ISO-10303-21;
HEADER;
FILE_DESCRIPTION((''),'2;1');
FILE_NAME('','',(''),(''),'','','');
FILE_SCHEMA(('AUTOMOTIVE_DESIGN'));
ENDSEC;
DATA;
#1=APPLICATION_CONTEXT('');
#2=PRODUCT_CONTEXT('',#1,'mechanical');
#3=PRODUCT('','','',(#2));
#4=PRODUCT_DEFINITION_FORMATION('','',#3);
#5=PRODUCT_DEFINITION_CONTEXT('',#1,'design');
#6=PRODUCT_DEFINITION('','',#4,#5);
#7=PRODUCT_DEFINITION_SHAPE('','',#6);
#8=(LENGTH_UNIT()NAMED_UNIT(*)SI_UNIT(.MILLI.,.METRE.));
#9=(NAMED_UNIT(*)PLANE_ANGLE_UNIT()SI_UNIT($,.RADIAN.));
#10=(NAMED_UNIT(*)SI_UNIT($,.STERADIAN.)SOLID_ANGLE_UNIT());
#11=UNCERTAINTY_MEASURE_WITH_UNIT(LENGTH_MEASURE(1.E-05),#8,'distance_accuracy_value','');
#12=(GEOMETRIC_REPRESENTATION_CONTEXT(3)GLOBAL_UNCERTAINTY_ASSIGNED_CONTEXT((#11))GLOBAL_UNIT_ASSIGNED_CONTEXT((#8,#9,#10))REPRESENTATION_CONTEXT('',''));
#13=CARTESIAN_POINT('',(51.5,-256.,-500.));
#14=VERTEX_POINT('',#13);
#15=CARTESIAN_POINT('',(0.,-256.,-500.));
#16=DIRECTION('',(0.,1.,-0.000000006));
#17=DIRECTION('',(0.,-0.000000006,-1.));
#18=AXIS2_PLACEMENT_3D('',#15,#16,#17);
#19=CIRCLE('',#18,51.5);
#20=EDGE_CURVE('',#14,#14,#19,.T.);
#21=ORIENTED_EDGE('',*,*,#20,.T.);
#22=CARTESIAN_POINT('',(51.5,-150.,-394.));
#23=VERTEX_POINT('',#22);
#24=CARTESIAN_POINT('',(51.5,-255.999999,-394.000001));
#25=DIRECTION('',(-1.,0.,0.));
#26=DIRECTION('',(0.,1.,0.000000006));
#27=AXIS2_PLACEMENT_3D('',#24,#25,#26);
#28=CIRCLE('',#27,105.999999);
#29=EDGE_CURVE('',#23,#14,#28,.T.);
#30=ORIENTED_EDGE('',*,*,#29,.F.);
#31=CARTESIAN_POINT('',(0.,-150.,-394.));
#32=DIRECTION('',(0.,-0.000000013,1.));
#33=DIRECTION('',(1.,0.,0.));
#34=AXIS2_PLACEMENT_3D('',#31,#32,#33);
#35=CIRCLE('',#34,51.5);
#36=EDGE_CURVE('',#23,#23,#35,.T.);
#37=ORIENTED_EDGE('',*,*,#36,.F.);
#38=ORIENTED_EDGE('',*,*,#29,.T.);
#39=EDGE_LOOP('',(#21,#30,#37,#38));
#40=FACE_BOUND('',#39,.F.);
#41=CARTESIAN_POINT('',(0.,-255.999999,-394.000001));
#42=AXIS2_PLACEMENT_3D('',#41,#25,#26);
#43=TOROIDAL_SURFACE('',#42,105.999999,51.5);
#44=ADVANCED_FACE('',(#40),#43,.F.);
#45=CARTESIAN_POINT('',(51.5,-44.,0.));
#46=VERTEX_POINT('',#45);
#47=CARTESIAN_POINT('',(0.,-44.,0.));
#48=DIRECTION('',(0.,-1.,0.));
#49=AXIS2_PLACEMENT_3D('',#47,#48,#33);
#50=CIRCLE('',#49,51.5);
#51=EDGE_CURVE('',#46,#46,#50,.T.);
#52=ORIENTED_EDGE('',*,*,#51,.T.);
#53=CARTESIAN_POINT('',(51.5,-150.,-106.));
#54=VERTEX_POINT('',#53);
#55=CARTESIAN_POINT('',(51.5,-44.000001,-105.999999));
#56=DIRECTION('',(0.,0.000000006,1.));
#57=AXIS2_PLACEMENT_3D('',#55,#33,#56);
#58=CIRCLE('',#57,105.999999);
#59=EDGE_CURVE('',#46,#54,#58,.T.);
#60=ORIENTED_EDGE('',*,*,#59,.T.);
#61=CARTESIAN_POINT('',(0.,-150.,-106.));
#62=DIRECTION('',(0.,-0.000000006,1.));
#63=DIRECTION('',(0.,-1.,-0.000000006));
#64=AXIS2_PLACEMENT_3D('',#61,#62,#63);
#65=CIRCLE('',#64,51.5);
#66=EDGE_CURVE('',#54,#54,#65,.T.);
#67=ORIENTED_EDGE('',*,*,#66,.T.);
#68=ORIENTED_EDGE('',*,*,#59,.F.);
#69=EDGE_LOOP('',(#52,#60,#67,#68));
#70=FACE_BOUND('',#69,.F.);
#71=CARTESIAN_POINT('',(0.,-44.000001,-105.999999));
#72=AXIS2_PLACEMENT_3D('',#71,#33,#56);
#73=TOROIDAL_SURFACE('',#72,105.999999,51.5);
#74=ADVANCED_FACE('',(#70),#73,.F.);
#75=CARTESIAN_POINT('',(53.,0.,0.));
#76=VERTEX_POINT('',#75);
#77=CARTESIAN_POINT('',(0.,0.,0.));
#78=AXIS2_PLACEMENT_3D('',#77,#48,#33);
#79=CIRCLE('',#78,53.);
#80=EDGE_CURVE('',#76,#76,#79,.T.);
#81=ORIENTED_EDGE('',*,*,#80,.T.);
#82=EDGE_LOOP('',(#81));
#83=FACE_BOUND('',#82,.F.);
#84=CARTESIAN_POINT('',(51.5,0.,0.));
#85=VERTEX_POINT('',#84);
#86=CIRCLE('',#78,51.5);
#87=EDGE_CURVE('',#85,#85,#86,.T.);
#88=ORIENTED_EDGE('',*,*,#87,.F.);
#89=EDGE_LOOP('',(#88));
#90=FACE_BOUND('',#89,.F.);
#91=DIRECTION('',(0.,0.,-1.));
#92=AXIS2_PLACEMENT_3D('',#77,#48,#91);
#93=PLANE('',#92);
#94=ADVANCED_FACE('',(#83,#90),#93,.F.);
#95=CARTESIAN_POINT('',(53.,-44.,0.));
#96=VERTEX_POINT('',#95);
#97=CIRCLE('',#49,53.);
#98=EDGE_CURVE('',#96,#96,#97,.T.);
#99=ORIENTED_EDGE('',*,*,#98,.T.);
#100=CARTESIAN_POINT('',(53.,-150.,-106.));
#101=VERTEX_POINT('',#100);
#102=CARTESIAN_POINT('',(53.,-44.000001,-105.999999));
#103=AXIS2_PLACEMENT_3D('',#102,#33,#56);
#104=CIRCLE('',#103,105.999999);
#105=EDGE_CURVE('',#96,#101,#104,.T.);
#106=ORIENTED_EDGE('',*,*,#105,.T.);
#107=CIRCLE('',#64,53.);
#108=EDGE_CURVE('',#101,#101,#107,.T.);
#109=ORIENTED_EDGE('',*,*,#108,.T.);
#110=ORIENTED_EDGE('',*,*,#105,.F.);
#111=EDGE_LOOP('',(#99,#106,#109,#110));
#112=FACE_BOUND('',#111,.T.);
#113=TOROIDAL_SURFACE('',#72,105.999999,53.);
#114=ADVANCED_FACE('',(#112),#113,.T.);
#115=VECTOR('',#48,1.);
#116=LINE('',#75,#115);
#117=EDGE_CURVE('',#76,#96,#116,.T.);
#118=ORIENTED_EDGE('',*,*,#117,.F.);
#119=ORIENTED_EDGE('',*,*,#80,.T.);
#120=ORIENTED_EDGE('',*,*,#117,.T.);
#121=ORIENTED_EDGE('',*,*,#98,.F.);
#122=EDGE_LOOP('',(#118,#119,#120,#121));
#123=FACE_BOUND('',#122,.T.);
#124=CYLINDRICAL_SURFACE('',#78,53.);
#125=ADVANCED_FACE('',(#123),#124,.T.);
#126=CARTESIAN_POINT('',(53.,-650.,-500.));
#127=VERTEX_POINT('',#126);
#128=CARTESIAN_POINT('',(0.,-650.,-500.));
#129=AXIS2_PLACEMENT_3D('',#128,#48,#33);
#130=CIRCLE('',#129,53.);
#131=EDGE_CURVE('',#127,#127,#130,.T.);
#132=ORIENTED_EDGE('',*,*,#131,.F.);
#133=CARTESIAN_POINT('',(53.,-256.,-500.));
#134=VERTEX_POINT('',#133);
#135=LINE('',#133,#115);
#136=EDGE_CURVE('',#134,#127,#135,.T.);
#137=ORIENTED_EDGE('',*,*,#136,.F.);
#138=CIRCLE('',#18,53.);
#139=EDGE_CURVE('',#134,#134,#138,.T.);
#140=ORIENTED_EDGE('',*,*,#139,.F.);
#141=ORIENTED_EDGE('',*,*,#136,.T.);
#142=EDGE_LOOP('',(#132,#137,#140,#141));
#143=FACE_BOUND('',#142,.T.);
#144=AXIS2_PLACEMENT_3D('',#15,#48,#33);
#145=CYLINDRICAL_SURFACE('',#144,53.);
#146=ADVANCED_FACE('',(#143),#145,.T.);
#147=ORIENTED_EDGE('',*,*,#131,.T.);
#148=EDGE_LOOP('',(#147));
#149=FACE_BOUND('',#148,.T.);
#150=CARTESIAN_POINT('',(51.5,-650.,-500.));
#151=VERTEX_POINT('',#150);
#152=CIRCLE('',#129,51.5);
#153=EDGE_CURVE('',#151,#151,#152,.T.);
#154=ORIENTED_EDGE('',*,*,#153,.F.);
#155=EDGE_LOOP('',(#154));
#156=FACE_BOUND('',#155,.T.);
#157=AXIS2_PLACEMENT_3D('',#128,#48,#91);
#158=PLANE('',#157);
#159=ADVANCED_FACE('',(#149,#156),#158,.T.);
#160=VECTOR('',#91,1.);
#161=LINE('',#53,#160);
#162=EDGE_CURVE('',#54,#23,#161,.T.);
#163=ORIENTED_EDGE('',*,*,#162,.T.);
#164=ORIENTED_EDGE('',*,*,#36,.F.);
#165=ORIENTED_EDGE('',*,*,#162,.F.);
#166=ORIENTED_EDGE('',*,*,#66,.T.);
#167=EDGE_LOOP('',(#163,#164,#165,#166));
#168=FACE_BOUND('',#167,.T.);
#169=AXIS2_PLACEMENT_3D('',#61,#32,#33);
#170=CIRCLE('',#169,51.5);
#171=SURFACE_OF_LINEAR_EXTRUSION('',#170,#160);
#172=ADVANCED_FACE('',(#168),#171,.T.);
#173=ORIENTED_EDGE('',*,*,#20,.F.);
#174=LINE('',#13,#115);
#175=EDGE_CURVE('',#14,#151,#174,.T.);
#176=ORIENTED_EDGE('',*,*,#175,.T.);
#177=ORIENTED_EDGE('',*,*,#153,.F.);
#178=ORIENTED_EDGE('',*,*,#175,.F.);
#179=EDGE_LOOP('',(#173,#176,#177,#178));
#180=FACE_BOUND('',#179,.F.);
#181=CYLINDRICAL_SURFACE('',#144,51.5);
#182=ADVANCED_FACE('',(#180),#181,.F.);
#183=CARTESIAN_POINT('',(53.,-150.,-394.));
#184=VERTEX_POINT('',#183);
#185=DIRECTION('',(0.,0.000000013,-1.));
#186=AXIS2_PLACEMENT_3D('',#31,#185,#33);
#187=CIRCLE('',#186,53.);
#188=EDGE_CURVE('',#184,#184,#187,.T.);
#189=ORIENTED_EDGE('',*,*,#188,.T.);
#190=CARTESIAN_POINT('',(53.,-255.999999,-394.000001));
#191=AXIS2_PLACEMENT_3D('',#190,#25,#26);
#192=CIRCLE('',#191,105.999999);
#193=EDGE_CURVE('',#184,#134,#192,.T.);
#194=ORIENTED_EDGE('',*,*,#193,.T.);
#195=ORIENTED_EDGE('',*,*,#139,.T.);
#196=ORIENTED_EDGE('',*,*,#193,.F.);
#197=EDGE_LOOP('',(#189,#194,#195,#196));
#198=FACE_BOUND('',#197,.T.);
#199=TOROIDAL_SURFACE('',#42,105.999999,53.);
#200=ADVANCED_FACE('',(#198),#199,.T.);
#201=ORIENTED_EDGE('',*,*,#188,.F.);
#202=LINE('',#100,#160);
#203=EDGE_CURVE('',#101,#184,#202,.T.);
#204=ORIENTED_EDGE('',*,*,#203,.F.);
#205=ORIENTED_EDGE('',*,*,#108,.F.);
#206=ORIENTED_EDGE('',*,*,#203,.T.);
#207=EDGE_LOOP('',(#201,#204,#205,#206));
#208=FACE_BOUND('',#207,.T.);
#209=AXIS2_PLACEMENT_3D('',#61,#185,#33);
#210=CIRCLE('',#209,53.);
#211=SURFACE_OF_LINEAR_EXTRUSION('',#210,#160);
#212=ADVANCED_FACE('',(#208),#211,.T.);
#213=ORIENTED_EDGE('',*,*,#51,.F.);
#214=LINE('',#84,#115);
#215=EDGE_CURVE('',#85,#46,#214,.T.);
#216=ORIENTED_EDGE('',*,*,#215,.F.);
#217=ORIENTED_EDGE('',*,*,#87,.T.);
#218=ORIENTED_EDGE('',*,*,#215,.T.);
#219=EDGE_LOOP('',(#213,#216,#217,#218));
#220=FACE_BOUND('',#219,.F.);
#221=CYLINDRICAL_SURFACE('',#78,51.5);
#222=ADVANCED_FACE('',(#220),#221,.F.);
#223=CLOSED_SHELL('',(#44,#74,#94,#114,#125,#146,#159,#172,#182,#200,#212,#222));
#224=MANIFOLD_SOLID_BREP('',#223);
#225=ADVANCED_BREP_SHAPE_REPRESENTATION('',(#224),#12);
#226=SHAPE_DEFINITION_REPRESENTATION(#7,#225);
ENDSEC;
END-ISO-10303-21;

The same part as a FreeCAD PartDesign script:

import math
import FreeCAD as App
import Part
import Sketcher

V = App.Vector

doc = App.newDocument("Part")
body = doc.addObject("PartDesign::Body", "Body")

sketch1 = body.newObject("Sketcher::SketchObject", "Sketch")
sketch1.AttachmentSupport = (doc.getObject("XZ_Plane"), [""])
sketch1.MapMode = "FlatFace"
sketch1.addGeometry(Part.Circle(V(0, 0, 0), V(0, 0, 1), 53), False)
sketch1.addGeometry(Part.Circle(V(0, 0, 0), V(0, 0, 1), 52), False)
sketch1.addConstraint(Sketcher.Constraint("Coincident", 0, 3, -1, 1))
sketch1.addConstraint(Sketcher.Constraint("Coincident", 1, 3, -1, 1))
sketch1.addConstraint(Sketcher.Constraint("Diameter", 0, 106.0))
sketch1.addConstraint(Sketcher.Constraint("Diameter", 1, 103.0))

sketch2 = body.newObject("Sketcher::SketchObject", "Sketch001")
sketch2.AttachmentSupport = (doc.getObject("YZ_Plane"), [""])
sketch2.MapMode = "FlatFace"
sketch2.addGeometry(Part.LineSegment(V(0, 0, 0), V(-44, 0, 0)), False)
sketch2.addGeometry(Part.ArcOfCircle(Part.Circle(V(-44, -106, 0), V(0, 0, 1), 106), math.radians(90), math.radians(180)), False)
sketch2.addGeometry(Part.LineSegment(V(-150, -106, 0), V(-150, -394, 0)), False)
sketch2.addGeometry(Part.ArcOfCircle(Part.Circle(V(-256, -394, 0), V(0, 0, 1), 106), math.radians(-90), math.radians(0)), False)
sketch2.addGeometry(Part.LineSegment(V(-256, -500, 0), V(-650, -500, 0)), False)
sketch2.addConstraint(Sketcher.Constraint("Tangent", 0, 2, 1, 1))
sketch2.addConstraint(Sketcher.Constraint("Tangent", 1, 2, 2, 1))
sketch2.addConstraint(Sketcher.Constraint("Tangent", 2, 2, 3, 2))
sketch2.addConstraint(Sketcher.Constraint("Tangent", 3, 1, 4, 1))
sketch2.addConstraint(Sketcher.Constraint("Horizontal", 0))
sketch2.addConstraint(Sketcher.Constraint("Vertical", 2))
sketch2.addConstraint(Sketcher.Constraint("Horizontal", 4))
sketch2.addConstraint(Sketcher.Constraint("Coincident", 0, 1, -1, 1))
sketch2.addConstraint(Sketcher.Constraint("Equal", 1, 3))
sketch2.addConstraint(Sketcher.Constraint("Radius", 1, 105.999999))
sketch2.addConstraint(Sketcher.Constraint("DistanceX", 0, 2, 0, 1, 44.0))
sketch2.addConstraint(Sketcher.Constraint("DistanceX", 4, 2, 4, 1, 394.0))
sketch2.addConstraint(Sketcher.Constraint("DistanceY", 2, 2, 2, 1, 288.0))
doc.recompute()

additivepipe = body.newObject("PartDesign::AdditivePipe", "AdditivePipe")
additivepipe.Profile = sketch1
additivepipe.Spine = (sketch2, ["Edge1", "Edge2", "Edge3", "Edge4", "Edge5"])

doc.recompute()
